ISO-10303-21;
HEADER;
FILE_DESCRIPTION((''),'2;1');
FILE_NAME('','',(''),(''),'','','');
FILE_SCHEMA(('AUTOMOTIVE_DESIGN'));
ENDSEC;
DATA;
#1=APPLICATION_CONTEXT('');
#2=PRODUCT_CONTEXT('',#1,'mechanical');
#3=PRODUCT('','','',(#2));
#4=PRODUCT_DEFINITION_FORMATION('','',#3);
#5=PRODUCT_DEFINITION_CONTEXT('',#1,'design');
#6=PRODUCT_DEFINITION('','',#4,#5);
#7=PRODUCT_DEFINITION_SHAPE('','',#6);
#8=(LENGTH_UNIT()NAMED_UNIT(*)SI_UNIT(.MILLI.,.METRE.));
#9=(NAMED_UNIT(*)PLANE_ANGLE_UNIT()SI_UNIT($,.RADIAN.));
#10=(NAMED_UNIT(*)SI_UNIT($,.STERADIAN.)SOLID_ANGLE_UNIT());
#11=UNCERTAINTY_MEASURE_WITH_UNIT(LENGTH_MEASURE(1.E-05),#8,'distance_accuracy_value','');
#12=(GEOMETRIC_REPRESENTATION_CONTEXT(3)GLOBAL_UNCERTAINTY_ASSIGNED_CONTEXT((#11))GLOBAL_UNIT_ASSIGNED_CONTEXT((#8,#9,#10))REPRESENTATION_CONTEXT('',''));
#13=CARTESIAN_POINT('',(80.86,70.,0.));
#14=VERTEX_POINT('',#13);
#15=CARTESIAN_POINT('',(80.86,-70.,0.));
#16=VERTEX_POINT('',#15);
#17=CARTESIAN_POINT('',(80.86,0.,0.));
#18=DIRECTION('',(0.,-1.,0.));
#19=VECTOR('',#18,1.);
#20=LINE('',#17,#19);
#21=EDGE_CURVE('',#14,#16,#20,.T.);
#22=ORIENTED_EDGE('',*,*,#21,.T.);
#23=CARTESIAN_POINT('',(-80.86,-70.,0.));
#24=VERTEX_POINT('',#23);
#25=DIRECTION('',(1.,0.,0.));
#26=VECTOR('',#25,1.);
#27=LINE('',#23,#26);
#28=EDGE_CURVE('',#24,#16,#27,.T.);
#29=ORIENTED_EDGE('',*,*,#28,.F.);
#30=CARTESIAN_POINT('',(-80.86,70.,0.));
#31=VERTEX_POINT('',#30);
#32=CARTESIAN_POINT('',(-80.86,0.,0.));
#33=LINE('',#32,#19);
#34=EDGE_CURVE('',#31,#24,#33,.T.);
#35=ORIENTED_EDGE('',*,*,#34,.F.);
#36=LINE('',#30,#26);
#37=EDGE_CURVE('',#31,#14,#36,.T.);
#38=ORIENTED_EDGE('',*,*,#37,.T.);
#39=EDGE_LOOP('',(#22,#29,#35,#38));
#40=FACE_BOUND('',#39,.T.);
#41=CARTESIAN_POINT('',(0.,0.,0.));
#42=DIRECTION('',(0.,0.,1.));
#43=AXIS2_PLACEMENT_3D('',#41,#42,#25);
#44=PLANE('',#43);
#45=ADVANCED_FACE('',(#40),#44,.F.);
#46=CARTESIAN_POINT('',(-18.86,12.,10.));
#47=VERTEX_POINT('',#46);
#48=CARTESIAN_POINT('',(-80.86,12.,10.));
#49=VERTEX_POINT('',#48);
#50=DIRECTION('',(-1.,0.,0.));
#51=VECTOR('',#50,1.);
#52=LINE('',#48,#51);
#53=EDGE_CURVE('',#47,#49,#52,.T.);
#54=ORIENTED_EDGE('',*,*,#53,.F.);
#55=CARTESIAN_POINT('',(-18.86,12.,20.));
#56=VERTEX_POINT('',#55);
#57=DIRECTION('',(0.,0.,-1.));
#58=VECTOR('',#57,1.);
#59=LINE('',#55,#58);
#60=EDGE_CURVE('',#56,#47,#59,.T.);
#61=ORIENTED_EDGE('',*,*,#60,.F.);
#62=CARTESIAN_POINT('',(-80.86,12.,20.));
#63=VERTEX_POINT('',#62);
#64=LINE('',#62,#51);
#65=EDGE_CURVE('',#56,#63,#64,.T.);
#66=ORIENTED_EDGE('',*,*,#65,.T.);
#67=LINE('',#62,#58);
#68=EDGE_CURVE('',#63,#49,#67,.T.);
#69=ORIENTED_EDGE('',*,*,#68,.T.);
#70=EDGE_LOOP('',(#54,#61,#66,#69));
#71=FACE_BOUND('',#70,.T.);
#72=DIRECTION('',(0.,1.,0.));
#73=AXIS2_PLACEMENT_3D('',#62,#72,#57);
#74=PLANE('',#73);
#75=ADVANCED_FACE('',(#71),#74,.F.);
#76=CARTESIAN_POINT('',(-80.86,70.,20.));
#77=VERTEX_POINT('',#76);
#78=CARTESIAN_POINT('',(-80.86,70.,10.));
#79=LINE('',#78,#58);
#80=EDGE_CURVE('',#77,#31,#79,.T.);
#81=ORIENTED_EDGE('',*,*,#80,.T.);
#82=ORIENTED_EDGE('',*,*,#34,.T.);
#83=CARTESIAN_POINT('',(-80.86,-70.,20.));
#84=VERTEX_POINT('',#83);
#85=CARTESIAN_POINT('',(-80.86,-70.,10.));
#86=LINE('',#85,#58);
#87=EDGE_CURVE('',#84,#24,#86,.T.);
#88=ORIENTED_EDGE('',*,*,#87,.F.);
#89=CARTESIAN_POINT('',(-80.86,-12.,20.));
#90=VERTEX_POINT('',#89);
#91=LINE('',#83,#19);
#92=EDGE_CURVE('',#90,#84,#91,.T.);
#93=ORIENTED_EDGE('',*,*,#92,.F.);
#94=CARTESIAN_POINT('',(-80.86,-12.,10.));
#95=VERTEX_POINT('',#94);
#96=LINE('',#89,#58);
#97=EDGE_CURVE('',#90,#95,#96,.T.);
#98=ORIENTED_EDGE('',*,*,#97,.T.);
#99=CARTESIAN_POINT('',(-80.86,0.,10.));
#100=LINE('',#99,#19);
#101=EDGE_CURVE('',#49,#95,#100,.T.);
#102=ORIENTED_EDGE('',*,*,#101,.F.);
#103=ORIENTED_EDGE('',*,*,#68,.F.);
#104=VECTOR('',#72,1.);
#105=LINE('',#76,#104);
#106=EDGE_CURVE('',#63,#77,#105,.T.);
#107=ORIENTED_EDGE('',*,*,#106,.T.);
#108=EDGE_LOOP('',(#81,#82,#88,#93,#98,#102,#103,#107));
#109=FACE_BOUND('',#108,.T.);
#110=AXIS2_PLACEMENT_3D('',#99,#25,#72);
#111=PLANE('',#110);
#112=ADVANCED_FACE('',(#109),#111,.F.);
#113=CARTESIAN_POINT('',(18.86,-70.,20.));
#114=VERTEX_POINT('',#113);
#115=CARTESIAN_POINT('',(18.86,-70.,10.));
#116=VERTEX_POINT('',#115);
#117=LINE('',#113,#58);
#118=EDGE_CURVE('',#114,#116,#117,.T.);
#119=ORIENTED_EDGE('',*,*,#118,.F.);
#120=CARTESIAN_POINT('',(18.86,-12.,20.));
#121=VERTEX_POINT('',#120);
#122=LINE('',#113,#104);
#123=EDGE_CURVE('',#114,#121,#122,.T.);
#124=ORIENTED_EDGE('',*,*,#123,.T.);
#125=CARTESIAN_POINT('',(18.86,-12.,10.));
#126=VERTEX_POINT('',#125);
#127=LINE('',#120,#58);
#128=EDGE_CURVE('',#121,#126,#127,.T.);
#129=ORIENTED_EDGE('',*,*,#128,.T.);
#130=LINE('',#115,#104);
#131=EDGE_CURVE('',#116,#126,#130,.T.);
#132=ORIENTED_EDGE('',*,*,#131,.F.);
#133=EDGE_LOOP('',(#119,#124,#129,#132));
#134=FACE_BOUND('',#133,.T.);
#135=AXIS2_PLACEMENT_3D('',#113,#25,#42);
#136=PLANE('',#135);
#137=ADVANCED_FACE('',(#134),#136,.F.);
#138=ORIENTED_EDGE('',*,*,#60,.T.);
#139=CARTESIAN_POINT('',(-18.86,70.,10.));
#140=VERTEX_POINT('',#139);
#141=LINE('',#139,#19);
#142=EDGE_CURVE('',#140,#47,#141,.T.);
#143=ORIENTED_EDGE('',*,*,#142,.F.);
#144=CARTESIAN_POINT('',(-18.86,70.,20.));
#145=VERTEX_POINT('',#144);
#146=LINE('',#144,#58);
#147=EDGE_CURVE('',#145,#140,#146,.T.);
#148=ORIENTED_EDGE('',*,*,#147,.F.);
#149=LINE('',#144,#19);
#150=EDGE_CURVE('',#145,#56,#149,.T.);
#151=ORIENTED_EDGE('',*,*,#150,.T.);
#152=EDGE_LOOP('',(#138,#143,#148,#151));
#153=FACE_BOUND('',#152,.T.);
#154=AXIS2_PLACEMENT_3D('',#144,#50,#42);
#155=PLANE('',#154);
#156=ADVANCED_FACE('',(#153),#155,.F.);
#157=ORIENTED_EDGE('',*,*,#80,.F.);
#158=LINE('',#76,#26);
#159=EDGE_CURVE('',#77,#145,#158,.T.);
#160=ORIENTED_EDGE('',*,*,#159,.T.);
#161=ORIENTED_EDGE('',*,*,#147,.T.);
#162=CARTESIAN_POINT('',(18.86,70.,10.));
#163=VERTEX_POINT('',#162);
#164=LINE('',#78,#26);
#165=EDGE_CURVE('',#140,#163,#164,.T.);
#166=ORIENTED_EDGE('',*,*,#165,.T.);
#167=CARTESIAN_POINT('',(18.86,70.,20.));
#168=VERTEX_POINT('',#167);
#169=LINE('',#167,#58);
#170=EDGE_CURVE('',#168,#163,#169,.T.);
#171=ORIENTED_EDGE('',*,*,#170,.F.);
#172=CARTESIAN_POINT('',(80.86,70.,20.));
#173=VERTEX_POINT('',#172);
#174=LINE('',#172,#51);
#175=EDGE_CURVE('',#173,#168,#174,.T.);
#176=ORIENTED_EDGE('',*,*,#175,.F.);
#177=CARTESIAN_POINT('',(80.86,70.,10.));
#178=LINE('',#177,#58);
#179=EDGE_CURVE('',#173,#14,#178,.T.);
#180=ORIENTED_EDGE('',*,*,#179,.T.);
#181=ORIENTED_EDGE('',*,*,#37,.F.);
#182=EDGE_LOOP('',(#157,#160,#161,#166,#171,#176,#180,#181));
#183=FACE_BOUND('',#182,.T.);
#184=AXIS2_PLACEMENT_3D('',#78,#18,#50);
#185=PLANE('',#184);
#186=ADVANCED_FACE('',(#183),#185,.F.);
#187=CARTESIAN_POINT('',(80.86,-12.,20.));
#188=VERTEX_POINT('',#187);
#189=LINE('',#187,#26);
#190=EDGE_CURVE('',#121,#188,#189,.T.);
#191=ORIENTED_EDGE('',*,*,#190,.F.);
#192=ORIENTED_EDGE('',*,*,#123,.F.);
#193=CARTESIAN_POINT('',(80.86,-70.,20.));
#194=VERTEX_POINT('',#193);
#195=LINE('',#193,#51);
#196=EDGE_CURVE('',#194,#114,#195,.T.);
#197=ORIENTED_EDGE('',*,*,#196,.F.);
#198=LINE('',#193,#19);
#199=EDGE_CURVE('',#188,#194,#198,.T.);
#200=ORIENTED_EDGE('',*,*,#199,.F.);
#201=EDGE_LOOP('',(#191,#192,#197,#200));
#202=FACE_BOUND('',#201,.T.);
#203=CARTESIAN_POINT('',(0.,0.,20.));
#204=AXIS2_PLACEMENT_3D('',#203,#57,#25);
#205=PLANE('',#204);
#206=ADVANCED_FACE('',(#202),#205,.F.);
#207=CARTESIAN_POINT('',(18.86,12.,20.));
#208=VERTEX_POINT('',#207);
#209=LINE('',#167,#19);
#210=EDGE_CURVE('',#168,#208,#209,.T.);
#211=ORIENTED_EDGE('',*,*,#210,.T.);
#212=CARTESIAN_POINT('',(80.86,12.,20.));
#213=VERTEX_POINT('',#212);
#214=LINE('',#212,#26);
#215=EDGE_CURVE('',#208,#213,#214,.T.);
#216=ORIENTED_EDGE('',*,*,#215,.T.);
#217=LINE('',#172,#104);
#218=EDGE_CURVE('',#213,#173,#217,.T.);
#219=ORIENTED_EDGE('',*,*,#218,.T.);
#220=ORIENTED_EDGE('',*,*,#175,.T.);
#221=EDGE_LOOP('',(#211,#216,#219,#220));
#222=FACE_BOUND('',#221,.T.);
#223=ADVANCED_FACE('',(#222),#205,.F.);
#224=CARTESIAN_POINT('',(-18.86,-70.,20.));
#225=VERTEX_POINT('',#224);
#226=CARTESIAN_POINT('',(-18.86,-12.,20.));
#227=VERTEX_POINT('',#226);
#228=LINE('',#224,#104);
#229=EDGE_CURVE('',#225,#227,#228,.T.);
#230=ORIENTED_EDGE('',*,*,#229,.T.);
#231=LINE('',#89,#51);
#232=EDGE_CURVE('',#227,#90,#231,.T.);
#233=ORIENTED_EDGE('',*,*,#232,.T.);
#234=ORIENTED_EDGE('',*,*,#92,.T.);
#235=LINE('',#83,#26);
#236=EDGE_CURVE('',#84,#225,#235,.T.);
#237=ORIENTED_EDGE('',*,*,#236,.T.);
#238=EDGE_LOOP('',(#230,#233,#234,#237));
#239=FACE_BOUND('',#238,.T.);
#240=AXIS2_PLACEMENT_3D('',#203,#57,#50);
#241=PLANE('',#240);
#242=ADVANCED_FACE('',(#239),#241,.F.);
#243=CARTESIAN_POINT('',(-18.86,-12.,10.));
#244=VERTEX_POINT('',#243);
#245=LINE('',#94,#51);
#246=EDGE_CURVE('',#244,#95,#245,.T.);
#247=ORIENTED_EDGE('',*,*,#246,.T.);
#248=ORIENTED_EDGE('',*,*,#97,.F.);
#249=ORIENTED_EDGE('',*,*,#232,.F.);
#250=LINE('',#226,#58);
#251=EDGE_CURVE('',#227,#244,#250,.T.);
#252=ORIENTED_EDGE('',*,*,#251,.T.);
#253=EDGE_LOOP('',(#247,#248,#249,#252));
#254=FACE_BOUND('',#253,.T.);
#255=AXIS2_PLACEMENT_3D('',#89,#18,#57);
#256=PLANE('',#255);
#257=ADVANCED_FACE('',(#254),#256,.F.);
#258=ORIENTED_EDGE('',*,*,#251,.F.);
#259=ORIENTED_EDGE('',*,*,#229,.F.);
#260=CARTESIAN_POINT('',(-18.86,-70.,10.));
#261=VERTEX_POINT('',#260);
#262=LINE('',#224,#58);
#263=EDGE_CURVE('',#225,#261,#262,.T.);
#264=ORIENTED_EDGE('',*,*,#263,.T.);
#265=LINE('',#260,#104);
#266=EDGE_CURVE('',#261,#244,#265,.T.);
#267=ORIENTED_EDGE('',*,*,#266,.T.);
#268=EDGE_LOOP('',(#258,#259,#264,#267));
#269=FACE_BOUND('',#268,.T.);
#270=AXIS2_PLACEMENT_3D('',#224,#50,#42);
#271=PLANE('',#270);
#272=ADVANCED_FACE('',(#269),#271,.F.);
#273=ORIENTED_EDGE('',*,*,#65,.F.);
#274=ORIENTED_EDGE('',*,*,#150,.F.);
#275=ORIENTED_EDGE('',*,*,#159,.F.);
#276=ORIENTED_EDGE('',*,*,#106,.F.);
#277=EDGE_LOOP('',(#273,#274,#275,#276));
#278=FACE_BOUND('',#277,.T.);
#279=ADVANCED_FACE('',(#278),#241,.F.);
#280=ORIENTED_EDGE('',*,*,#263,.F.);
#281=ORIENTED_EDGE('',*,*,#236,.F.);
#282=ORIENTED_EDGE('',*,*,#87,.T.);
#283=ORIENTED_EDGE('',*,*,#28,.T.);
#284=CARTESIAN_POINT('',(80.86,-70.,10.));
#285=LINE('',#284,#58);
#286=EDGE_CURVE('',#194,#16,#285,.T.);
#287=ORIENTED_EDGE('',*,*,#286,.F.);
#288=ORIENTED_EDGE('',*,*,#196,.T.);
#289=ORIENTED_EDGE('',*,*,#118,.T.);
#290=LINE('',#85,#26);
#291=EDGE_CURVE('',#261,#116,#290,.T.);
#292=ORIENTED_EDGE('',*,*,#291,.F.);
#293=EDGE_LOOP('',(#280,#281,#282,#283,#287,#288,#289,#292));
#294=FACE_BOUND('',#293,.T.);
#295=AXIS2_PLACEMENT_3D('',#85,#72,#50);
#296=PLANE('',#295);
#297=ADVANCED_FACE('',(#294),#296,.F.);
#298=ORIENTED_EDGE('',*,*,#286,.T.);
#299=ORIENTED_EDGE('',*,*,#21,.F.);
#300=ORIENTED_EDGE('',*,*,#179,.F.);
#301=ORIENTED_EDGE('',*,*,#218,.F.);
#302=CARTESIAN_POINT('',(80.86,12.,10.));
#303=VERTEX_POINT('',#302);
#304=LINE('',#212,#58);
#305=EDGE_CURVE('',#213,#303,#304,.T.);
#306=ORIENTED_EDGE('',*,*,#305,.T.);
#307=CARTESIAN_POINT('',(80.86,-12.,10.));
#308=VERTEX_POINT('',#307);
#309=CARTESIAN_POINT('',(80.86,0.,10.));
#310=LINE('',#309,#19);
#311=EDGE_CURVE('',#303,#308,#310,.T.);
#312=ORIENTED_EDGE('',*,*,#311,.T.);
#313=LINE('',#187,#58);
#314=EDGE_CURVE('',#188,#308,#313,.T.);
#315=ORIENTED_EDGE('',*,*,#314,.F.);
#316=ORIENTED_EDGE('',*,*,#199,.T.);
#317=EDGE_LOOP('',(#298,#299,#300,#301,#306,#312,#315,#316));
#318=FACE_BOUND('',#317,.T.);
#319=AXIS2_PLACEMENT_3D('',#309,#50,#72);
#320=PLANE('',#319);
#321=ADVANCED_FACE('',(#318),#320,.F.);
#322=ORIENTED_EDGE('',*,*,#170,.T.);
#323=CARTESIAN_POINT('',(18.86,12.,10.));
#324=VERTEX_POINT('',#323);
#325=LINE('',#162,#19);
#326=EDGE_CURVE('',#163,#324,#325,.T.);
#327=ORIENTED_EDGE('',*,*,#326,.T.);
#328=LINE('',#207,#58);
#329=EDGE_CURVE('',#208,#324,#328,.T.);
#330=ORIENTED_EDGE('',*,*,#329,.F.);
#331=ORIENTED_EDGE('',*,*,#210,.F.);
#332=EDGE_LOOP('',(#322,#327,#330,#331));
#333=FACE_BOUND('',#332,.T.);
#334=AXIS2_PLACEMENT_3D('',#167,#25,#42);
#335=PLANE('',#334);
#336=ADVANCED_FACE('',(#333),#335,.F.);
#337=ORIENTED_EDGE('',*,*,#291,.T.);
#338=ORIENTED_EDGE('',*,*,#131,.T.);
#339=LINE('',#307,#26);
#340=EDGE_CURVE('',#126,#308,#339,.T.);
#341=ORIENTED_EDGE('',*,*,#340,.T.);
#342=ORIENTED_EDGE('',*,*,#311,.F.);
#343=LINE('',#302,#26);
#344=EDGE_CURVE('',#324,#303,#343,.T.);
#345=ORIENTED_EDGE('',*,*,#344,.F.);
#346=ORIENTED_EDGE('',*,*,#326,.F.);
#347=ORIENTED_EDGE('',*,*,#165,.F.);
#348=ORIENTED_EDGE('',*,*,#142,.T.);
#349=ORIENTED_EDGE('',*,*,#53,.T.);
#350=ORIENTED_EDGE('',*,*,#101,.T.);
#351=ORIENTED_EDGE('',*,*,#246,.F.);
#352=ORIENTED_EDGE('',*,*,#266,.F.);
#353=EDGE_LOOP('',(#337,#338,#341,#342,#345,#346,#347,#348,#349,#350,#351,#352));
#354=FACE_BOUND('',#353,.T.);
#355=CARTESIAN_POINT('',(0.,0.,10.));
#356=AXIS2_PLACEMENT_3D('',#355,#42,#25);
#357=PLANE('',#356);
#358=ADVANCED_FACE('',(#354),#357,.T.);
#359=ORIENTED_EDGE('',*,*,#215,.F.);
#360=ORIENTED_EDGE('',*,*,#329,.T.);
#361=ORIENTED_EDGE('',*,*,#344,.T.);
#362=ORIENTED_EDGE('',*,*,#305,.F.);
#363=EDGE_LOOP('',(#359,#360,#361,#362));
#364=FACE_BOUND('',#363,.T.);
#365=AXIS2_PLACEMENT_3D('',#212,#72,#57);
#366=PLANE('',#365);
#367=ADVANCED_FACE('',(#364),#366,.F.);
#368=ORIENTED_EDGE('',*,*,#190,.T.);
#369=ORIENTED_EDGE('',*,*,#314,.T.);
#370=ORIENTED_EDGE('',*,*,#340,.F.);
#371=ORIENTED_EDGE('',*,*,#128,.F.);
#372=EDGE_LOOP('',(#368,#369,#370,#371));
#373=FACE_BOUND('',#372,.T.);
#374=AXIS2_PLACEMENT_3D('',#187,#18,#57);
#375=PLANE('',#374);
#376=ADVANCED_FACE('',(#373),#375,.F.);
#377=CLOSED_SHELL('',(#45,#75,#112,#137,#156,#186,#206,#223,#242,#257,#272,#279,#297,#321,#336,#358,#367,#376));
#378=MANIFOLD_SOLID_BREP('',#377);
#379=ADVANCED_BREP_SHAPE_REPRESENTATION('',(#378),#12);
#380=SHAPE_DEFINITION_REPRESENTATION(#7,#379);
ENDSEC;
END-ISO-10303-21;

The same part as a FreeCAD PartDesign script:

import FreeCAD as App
import Part
import Sketcher
from FreeCAD import Vector
Q = App.Units.Quantity


def add_polygon(sketch, points):
    """Adds a closed chain of lines whose ends are joined by coincident constraints."""
    first, n = sketch.GeometryCount, len(points)
    for a, b in zip(points, points[1:] + points[:1]):
        sketch.addGeometry(Part.LineSegment(App.Vector(*a, 0), App.Vector(*b, 0)), False)
    for i in range(n):
        sketch.addConstraint(Sketcher.Constraint("Coincident", first + i, 2, first + (i + 1) % n, 1))

doc = App.newDocument("Part")
body = doc.addObject("PartDesign::Body", "Body")

# Sketch on XY plane
sketch1 = body.newObject("Sketcher::SketchObject", "Sketch")
sketch1.AttachmentSupport = (doc.getObject("XY_Plane"), [""])
sketch1.MapMode = "FlatFace"
add_polygon(sketch1, [(-81, 0), (-81, -70), (0, -70), (0, 0)])  # lines 0-3
sketch1.addConstraint(Sketcher.Constraint("Vertical", 0))
sketch1.addConstraint(Sketcher.Constraint("Horizontal", 1))
sketch1.addConstraint(Sketcher.Constraint("Vertical", 2))
sketch1.addConstraint(Sketcher.Constraint("Horizontal", 3))
sketch1.addConstraint(Sketcher.Constraint("Coincident", 2, 2, -1, 1))
sketch1.addConstraint(Sketcher.Constraint("DistanceY", 0, 2, 0, 1, Q("70 mm")))
sketch1.addConstraint(Sketcher.Constraint("DistanceX", 1, 1, 1, 2, Q("80.86 mm")))
pad1 = body.newObject("PartDesign::Pad", "Pad")
pad1.Profile = sketch1
pad1.Length = 10

# Sketch on XY plane
sketch2 = body.newObject("Sketcher::SketchObject", "Sketch001")
sketch2.AttachmentSupport = (doc.getObject("XY_Plane"), [""])
sketch2.MapMode = "FlatFace"
sketch2.AttachmentOffset = App.Placement(Vector(0, 0, 10), App.Rotation())
add_polygon(sketch2, [(-81, -12), (-81, -70), (-19, -70), (-19, -12)])  # lines 0-3
sketch2.addConstraint(Sketcher.Constraint("Vertical", 0))
sketch2.addConstraint(Sketcher.Constraint("Horizontal", 1))
sketch2.addConstraint(Sketcher.Constraint("Vertical", 2))
sketch2.addConstraint(Sketcher.Constraint("Horizontal", 3))
sketch2.addConstraint(Sketcher.Constraint("DistanceX", 1, 1, 1, 2, Q("62 mm")))
sketch2.addConstraint(Sketcher.Constraint("DistanceY", 0, 2, 0, 1, Q("58 mm")))
sketch2.addConstraint(Sketcher.Constraint("DistanceY", 0, 2, -1, 1, Q("70 mm")))
sketch2.addConstraint(Sketcher.Constraint("DistanceX", 0, 2, -1, 1, Q("80.86 mm")))
pad2 = body.newObject("PartDesign::Pad", "Pad001")
pad2.Profile = sketch2
pad2.Length = 10
body2 = doc.addObject("PartDesign::Body", "Body001")
doc.recompute()

body2.BaseFeature = body
doc.recompute()

mirroring = doc.addObject("Part::Mirroring", "Mirroring")
mirroring.Source = body
mirroring.Base = Vector(0, 0, 10)
mirroring.Normal = Vector(-1, 0, 0)
body3 = doc.addObject("PartDesign::Body", "Body002")
body3.BaseFeature = mirroring
boolean = body2.newObject("PartDesign::Boolean", "Boolean")
boolean.Type = "Fuse"
boolean.addObjects([body3])
doc.recompute()
body4 = doc.addObject("PartDesign::Body", "Body003")
doc.recompute()

body4.BaseFeature = body2
doc.recompute()

mirroring2 = doc.addObject("Part::Mirroring", "Mirroring001")
mirroring2.Source = body2
mirroring2.Base = Vector(-80.86, 0, 10)
mirroring2.Normal = Vector(0, -1, 0)
body5 = doc.addObject("PartDesign::Body", "Body004")
body5.BaseFeature = mirroring2
boolean2 = body4.newObject("PartDesign::Boolean", "Boolean001")
boolean2.Type = "Fuse"
boolean2.addObjects([body5])
doc.recompute()
mirroring.Visibility = False
mirroring2.Visibility = False

doc.recompute()
